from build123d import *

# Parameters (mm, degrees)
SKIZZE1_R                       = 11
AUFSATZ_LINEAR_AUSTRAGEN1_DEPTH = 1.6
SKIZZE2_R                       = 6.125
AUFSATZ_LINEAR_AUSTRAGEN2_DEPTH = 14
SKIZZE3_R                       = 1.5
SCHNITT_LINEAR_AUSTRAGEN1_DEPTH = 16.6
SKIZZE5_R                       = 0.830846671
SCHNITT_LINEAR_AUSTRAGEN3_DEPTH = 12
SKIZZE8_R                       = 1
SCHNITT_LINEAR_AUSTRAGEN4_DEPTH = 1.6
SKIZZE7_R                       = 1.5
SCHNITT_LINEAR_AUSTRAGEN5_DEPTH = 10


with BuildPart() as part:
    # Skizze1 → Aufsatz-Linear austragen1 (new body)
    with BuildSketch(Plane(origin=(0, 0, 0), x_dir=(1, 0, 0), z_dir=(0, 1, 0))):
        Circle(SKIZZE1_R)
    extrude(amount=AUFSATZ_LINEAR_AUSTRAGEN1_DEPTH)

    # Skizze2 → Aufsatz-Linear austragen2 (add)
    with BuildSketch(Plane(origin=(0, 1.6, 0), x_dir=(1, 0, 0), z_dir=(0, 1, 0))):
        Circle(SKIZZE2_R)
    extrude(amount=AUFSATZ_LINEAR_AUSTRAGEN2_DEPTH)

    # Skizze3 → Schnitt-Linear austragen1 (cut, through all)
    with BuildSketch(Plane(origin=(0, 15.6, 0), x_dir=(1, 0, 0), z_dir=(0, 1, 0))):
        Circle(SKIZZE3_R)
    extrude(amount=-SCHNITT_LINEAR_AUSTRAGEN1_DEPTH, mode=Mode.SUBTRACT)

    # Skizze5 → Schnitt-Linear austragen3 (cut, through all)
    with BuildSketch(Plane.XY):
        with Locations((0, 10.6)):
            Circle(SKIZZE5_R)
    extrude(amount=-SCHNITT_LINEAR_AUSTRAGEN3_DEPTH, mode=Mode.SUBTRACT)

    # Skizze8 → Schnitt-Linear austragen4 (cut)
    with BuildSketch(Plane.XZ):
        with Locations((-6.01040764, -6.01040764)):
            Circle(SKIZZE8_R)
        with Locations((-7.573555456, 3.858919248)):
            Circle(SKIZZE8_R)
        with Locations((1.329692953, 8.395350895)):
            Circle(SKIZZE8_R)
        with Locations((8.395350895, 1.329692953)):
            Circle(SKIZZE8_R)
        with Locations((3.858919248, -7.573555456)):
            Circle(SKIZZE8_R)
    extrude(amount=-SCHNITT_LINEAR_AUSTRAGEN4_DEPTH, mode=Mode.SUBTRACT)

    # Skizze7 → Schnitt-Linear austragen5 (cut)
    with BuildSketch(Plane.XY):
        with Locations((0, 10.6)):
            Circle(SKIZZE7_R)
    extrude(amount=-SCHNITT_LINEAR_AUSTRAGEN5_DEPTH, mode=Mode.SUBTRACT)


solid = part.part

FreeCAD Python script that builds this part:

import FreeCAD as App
import Part
import Sketcher

V = App.Vector

doc = App.newDocument("Part")
params = doc.addObject("Spreadsheet::Sheet", "Params")
for row, (alias, value) in enumerate([
    ("sketch1_diameter", "22 mm"),
    ("pad1_length", "1.6 mm"),
    ("sketch2_diameter", "12.25 mm"),
    ("pad2_length", "14 mm"),
    ("sketch3_diameter", "3 mm"),
    ("sketch5_diameter", "2 mm"),
    ("pocket3_length", "1.6 mm"),
    ("sketch6_diameter", "3 mm"),
    ("pocket4_length", "10 mm"),
], start=1):
    params.set(f"A{row}", alias)
    params.set(f"B{row}", "=" + value)
    params.setAlias(f"B{row}", alias)

body = doc.addObject("PartDesign::Body", "Body")

sketch1 = body.newObject("Sketcher::SketchObject", "Sketch")
sketch1.AttachmentSupport = (doc.getObject("XZ_Plane"), [""])
sketch1.MapMode = "FlatFace"
sketch1.addGeometry(Part.Circle(V(0, 0, 0), V(0, 0, 1), 11), False)
sketch1.addConstraint([
    Sketcher.Constraint("Coincident", 0, 3, -1, 1),
    Sketcher.Constraint("Diameter", 0, 22.0),
])
sketch1.setExpression("Constraints[1]", "Params.sketch1_diameter")
pad1 = body.newObject("PartDesign::Pad", "Pad")
pad1.Profile = sketch1
pad1.setExpression("Length", "Params.pad1_length")
pad1.Reversed = True

sketch2 = body.newObject("Sketcher::SketchObject", "Sketch001")
sketch2.AttachmentSupport = (doc.getObject("XZ_Plane"), [""])
sketch2.MapMode = "FlatFace"
sketch2.AttachmentOffset = App.Placement(V(0, 0, -1.6), App.Rotation())
sketch2.addGeometry(Part.Circle(V(0, 0, 0), V(0, 0, 1), 6), False)
sketch2.addConstraint([
    Sketcher.Constraint("Coincident", 0, 3, -1, 1),
    Sketcher.Constraint("Diameter", 0, 12.25),
])
sketch2.setExpression("Constraints[1]", "Params.sketch2_diameter")
pad2 = body.newObject("PartDesign::Pad", "Pad001")
pad2.Profile = sketch2
pad2.setExpression("Length", "Params.pad2_length")
pad2.Reversed = True

sketch3 = body.newObject("Sketcher::SketchObject", "Sketch002")
sketch3.AttachmentSupport = (doc.getObject("XZ_Plane"), [""])
sketch3.MapMode = "FlatFace"
sketch3.AttachmentOffset = App.Placement(V(0, 0, -15.6), App.Rotation())
sketch3.addGeometry(Part.Circle(V(0, 0, 0), V(0, 0, 1), 1.5), False)
sketch3.addConstraint([
    Sketcher.Constraint("Coincident", 0, 3, -1, 1),
    Sketcher.Constraint("Diameter", 0, 3.0),
])
sketch3.setExpression("Constraints[1]", "Params.sketch3_diameter")
pocket1 = body.newObject("PartDesign::Pocket", "Pocket")
pocket1.Profile = sketch3
pocket1.Type = "ThroughAll"
pocket1.Reversed = True

sketch4 = body.newObject("Sketcher::SketchObject", "Sketch003")
sketch4.AttachmentSupport = (doc.getObject("XY_Plane"), [""])
sketch4.MapMode = "FlatFace"
sketch4.addGeometry(Part.Circle(V(0, 10.6, 0), V(0, 0, 1), 0.8), False)
sketch4.addConstraint([
    Sketcher.Constraint("PointOnObject", 0, 3, -2),
    Sketcher.Constraint("DistanceY", -1, 1, 0, 3, 10.6),
    Sketcher.Constraint("Diameter", 0, 1.661693),
])
pocket2 = body.newObject("PartDesign::Pocket", "Pocket001")
pocket2.Profile = sketch4
pocket2.Type = "ThroughAll"

sketch5 = body.newObject("Sketcher::SketchObject", "Sketch004")
sketch5.AttachmentSupport = (doc.getObject("XZ_Plane"), [""])
sketch5.MapMode = "FlatFace"
sketch5.addGeometry([
    Part.Circle(V(-6, -6, 0), V(0, 0, 1), 1),
    Part.Circle(V(-7.6, 3.9, 0), V(0, 0, 1), 1),
    Part.Circle(V(1.3, 8.4, 0), V(0, 0, 1), 1),
    Part.Circle(V(8.4, 1.3, 0), V(0, 0, 1), 1),
    Part.Circle(V(3.9, -7.6, 0), V(0, 0, 1), 1),
], False)
sketch5.addConstraint([
    Sketcher.Constraint("Equal", 0, 1),
    Sketcher.Constraint("Equal", 1, 2),
    Sketcher.Constraint("Equal", 2, 3),
    Sketcher.Constraint("Equal", 3, 4),
    Sketcher.Constraint("Diameter", 0, 2.0),
    Sketcher.Constraint("DistanceX", 0, 3, 2, 3, 7.340101),
    Sketcher.Constraint("DistanceY", 0, 3, 3, 3, 7.340101),
    Sketcher.Constraint("DistanceY", -1, 1, 1, 3, 3.858919),
    Sketcher.Constraint("DistanceY", -1, 1, 2, 3, 8.395351),
    Sketcher.Constraint("DistanceX", -1, 1, 3, 3, 8.395351),
    Sketcher.Constraint("DistanceX", -1, 1, 4, 3, 3.858919),
    Sketcher.Constraint("DistanceX", 1, 3, 2, 3, 8.903248),
    Sketcher.Constraint("DistanceY", 0, 3, 2, 3, 14.405759),
    Sketcher.Constraint("DistanceX", 0, 3, 3, 3, 14.405759),
    Sketcher.Constraint("DistanceY", 4, 3, 3, 3, 8.903248),
])
sketch5.setExpression("Constraints[4]", "Params.sketch5_diameter")
pocket3 = body.newObject("PartDesign::Pocket", "Pocket002")
pocket3.Profile = sketch5
pocket3.setExpression("Length", "Params.pocket3_length")

sketch6 = body.newObject("Sketcher::SketchObject", "Sketch005")
sketch6.AttachmentSupport = (doc.getObject("XY_Plane"), [""])
sketch6.MapMode = "FlatFace"
sketch6.addGeometry(Part.Circle(V(0, 10.6, 0), V(0, 0, 1), 1.5), False)
sketch6.addConstraint([
    Sketcher.Constraint("PointOnObject", 0, 3, -2),
    Sketcher.Constraint("Diameter", 0, 3.0),
    Sketcher.Constraint("DistanceY", -1, 1, 0, 3, 10.6),
])
sketch6.setExpression("Constraints[1]", "Params.sketch6_diameter")
pocket4 = body.newObject("PartDesign::Pocket", "Pocket003")
pocket4.Profile = sketch6
pocket4.setExpression("Length", "Params.pocket4_length")

doc.recompute()
